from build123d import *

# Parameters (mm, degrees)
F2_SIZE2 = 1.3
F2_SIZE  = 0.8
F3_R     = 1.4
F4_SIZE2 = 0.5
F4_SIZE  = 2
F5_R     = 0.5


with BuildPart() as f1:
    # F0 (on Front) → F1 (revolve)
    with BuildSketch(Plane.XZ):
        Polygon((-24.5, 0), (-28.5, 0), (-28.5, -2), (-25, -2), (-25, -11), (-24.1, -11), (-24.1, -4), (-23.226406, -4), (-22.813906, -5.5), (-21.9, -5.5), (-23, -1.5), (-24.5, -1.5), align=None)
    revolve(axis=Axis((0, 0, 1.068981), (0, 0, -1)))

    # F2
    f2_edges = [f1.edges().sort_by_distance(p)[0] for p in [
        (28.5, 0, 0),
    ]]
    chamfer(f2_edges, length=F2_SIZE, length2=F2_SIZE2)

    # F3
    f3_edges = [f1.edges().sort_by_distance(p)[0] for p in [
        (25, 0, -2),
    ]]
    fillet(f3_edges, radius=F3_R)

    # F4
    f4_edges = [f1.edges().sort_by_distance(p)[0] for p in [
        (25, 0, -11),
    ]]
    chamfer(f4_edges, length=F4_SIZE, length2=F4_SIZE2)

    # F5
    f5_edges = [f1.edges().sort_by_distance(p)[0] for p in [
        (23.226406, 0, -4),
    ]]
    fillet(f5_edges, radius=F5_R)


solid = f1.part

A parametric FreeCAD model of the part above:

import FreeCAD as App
import Part
import Sketcher
from FreeCAD import Vector


def edges_at(feature, points):
    """Names of the edges that pass closest to the given points."""
    edges = feature.Shape.Edges
    near = lambda p: min(range(len(edges)), key=lambda i: edges[i].distToShape(Part.Vertex(*p))[0])
    return sorted({f"Edge{near(p) + 1}" for p in points})


def add_polygon(sketch, points):
    """Adds a closed chain of lines whose ends are joined by coincident constraints."""
    first, n = sketch.GeometryCount, len(points)
    for a, b in zip(points, points[1:] + points[:1]):
        sketch.addGeometry(Part.LineSegment(App.Vector(*a, 0), App.Vector(*b, 0)), False)
    for i in range(n):
        sketch.addConstraint(Sketcher.Constraint("Coincident", first + i, 2, first + (i + 1) % n, 1))

doc = App.newDocument("Part")
body = doc.addObject("PartDesign::Body", "Body")

# Sketch on XZ plane
sketch1 = body.newObject("Sketcher::SketchObject", "Sketch")
sketch1.AttachmentSupport = (doc.getObject("XZ_Plane"), [""])
sketch1.MapMode = "FlatFace"
add_polygon(sketch1, [(-24.5, 0), (-28.5, 0), (-28.5, -2), (-25, -2), (-25, -11), (-24.1, -11), (-24.1, -4), (-23.226406, -4), (-22.813906, -5.5), (-21.9, -5.5), (-23, -1.5), (-24.5, -1.5)])  # lines 0-11
sketch1.addConstraint(Sketcher.Constraint("Horizontal", 0))
sketch1.addConstraint(Sketcher.Constraint("Vertical", 1))
sketch1.addConstraint(Sketcher.Constraint("Horizontal", 2))
sketch1.addConstraint(Sketcher.Constraint("Vertical", 3))
sketch1.addConstraint(Sketcher.Constraint("Horizontal", 4))
sketch1.addConstraint(Sketcher.Constraint("Vertical", 5))
sketch1.addConstraint(Sketcher.Constraint("Horizontal", 6))
sketch1.addConstraint(Sketcher.Constraint("Horizontal", 8))
sketch1.addConstraint(Sketcher.Constraint("Horizontal", 10))
sketch1.addConstraint(Sketcher.Constraint("Vertical", 11))
sketch1.addConstraint(Sketcher.Constraint("PointOnObject", 0, 2, -1))
sketch1.addConstraint(Sketcher.Constraint("Parallel", 7, 9))
sketch1.addConstraint(Sketcher.Constraint("Equal", 10, 11))
sketch1.addConstraint(Sketcher.Constraint("DistanceX", 0, 2, 0, 1, 4.0))
sketch1.addConstraint(Sketcher.Constraint("DistanceY", 1, 2, 1, 1, 2.0))
sketch1.addConstraint(Sketcher.Constraint("DistanceY", 3, 2, 3, 1, 9.0))
sketch1.addConstraint(Sketcher.Constraint("DistanceY", 5, 1, 5, 2, 7.0))
sketch1.addConstraint(Sketcher.Constraint("DistanceX", 2, 1, 2, 2, 3.5))
sketch1.addConstraint(Sketcher.Constraint("DistanceX", 4, 1, 4, 2, 0.9))
sketch1.addConstraint(Sketcher.Constraint("DistanceX", 10, 2, 10, 1, 1.5))
sketch1.addConstraint(Sketcher.Constraint("DistanceX", 2, 2, -1, 1, 25.0))
sketch1.addConstraint(Sketcher.Constraint("DistanceY", 7, 2, 9, 2, 4.0))
sketch1.addConstraint(Sketcher.Constraint("DistanceX", 8, 2, -1, 1, 21.9))
sketch1.addConstraint(Sketcher.Constraint("DistanceX", 6, 1, 6, 2, 0.873594))
revolution = body.newObject("PartDesign::Revolution", "Revolution")
revolution.Profile = sketch1
revolution.ReferenceAxis = (sketch1, ["V_Axis"])
revolution.Angle = 360
doc.recompute()

chamfer = body.newObject("PartDesign::Chamfer", "Chamfer")
chamfer.Base = (revolution, edges_at(revolution, [(28.5, 0, 0)]))
chamfer.ChamferType = "Two distances"
chamfer.Size = 0.8
chamfer.Size2 = 1.3
doc.recompute()

fillet = body.newObject("PartDesign::Fillet", "Fillet")
fillet.Base = (chamfer, edges_at(chamfer, [(25, 0, -2)]))
fillet.Radius = 1.4
doc.recompute()

chamfer2 = body.newObject("PartDesign::Chamfer", "Chamfer001")
chamfer2.Base = (fillet, edges_at(fillet, [(25, 0, -11)]))
chamfer2.ChamferType = "Two distances"
chamfer2.Size = 2
chamfer2.Size2 = 0.5
doc.recompute()

fillet2 = body.newObject("PartDesign::Fillet", "Fillet001")
fillet2.Base = (chamfer2, edges_at(chamfer2, [(23.226, 0, -4)]))
fillet2.Radius = 0.5

doc.recompute()
